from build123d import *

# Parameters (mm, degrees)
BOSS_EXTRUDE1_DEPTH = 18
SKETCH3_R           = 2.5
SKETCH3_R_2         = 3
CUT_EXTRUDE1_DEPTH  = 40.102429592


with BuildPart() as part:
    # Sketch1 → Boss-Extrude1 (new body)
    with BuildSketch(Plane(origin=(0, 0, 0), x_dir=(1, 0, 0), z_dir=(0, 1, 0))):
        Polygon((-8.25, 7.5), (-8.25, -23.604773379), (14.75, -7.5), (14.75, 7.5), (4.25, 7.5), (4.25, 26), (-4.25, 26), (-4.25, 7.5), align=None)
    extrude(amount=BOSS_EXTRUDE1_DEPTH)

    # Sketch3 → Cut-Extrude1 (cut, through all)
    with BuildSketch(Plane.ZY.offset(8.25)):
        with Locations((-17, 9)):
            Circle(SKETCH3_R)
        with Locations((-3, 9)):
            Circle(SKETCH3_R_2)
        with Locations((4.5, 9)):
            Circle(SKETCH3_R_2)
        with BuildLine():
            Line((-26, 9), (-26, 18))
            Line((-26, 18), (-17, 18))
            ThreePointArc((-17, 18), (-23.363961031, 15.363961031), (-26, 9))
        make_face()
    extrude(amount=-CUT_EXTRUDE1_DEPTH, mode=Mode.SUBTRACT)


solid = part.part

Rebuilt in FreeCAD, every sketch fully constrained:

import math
import FreeCAD as App
import Part
import Sketcher
Q = App.Units.Quantity


def add_polygon(sketch, points):
    """Adds a closed chain of lines whose ends are joined by coincident constraints."""
    first, n = sketch.GeometryCount, len(points)
    for a, b in zip(points, points[1:] + points[:1]):
        sketch.addGeometry(Part.LineSegment(App.Vector(*a, 0), App.Vector(*b, 0)), False)
    for i in range(n):
        sketch.addConstraint(Sketcher.Constraint("Coincident", first + i, 2, first + (i + 1) % n, 1))

doc = App.newDocument("Part")
body = doc.addObject("PartDesign::Body", "Body")

# Sketch on XZ plane
sketch1 = doc.addObject("Sketcher::SketchObject", "Sketch")
body.addObject(sketch1)
sketch1.AttachmentSupport = (doc.XZ_Plane, [""])
sketch1.MapMode = "FlatFace"
add_polygon(sketch1, [(-8.2, -7.5), (-8.2, 23.6), (14.8, 7.5), (14.8, -7.5), (4.2, -7.5), (4.2, -26), (-4.2, -26), (-4.2, -7.5)])  # lines 0-7
sketch1.addConstraint([
    Sketcher.Constraint("Vertical", 0),
    Sketcher.Constraint("Vertical", 2),
    Sketcher.Constraint("Horizontal", 3),
    Sketcher.Constraint("Vertical", 4),
    Sketcher.Constraint("Horizontal", 5),
    Sketcher.Constraint("Vertical", 6),
    Sketcher.Constraint("Horizontal", 7),
    Sketcher.Constraint("Symmetric", 3, 2, 6, 2, -2),
    Sketcher.Constraint("DistanceX", 7, 2, 7, 1, Q("4 mm")),
    Sketcher.Constraint("DistanceY", 2, 2, 2, 1, Q("15 mm")),
    Sketcher.Constraint("Angle", 1, Q("-35 deg")),
    Sketcher.Constraint("DistanceX", 3, 2, 3, 1, Q("10.5 mm")),
    Sketcher.Constraint("DistanceX", 5, 2, 5, 1, Q("8.5 mm")),
    Sketcher.Constraint("DistanceY", 4, 2, 4, 1, Q("18.5 mm")),
    Sketcher.Constraint("DistanceY", 4, 2, -1, 1, Q("26 mm")),
])
pad1 = doc.addObject("PartDesign::Pad", "Pad")
body.addObject(pad1)
pad1.Profile = sketch1
pad1.Length = 18
pad1.Reversed = True

# Sketch on YZ plane
sketch2 = doc.addObject("Sketcher::SketchObject", "Sketch001")
body.addObject(sketch2)
sketch2.AttachmentSupport = (doc.YZ_Plane, [""])
sketch2.MapMode = "FlatFace"
sketch2.AttachmentOffset = App.Placement(App.Vector(0, 0, -8.25), App.Rotation())
sketch2.addGeometry([
    Part.Circle(App.Vector(9, -17, 0), App.Vector(0, 0, 1), 2.5),  # 0
    Part.Circle(App.Vector(9, -3, 0), App.Vector(0, 0, 1), 3),  # 1
    Part.Circle(App.Vector(9, 4.5, 0), App.Vector(0, 0, 1), 3),  # 2
    Part.LineSegment(App.Vector(18, -26, 0), App.Vector(9, -26, 0)),  # 3
    Part.ArcOfCircle(Part.Circle(App.Vector(9, -17, 0), App.Vector(0, 0, 1), 9), math.radians(-90), math.radians(0)),  # 4
    Part.LineSegment(App.Vector(18, -17, 0), App.Vector(18, -26, 0)),  # 5
], False)
sketch2.addConstraint([
    Sketcher.Constraint("Tangent", 3, 2, 4, 1),
    Sketcher.Constraint("Tangent", 4, 2, 5, 1),
    Sketcher.Constraint("Coincident", 5, 2, 3, 1),
    Sketcher.Constraint("Horizontal", 3),
    Sketcher.Constraint("Vertical", 5),
    Sketcher.Constraint("Coincident", 4, 3, 0, 3),
    Sketcher.Constraint("Equal", 1, 2),
    Sketcher.Constraint("Vertical", 0, 3, 1, 3),
    Sketcher.Constraint("Vertical", 1, 3, 2, 3),
    Sketcher.Constraint("Diameter", 0, Q("5 mm")),
    Sketcher.Constraint("Diameter", 1, Q("6 mm")),
    Sketcher.Constraint("Radius", 4, Q("9 mm")),
    Sketcher.Constraint("DistanceX", -1, 1, 0, 3, Q("9 mm")),
    Sketcher.Constraint("DistanceY", 0, 3, -1, 1, Q("17 mm")),
    Sketcher.Constraint("DistanceY", 1, 3, -1, 1, Q("3 mm")),
    Sketcher.Constraint("DistanceY", -1, 1, 2, 3, Q("4.5 mm")),
])
pocket1 = doc.addObject("PartDesign::Pocket", "Pocket")
body.addObject(pocket1)
pocket1.Profile = sketch2
pocket1.Type = "ThroughAll"
pocket1.Reversed = True

doc.recompute()
